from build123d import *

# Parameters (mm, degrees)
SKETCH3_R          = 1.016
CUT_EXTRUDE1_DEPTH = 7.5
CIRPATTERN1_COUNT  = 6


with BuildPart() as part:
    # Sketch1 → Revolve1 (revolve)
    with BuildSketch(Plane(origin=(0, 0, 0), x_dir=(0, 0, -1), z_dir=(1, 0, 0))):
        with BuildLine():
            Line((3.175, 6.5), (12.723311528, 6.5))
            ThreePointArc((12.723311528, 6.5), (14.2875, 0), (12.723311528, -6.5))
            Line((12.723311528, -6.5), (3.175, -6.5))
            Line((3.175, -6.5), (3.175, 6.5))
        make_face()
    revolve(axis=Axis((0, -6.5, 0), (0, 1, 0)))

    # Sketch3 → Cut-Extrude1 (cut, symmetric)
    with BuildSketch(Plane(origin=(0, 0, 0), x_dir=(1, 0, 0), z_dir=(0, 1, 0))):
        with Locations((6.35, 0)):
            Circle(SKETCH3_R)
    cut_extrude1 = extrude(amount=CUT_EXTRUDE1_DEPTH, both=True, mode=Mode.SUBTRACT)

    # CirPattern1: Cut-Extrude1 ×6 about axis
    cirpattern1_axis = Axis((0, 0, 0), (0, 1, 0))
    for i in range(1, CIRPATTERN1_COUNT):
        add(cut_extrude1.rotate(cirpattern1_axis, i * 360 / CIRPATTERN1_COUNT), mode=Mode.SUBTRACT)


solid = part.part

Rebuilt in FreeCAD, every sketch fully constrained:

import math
import FreeCAD as App
import Part
import Sketcher
from FreeCAD import Vector
Q = App.Units.Quantity

doc = App.newDocument("Part")
params = doc.addObject("Spreadsheet::Sheet", "Params")
for row, (alias, value) in enumerate([
    ("sketch1_width", "13 mm"),
    ("revolution_angle", "360 deg"),
    ("pocket1_length", "15 mm"),
], start=1):
    params.set(f"A{row}", alias)
    params.set(f"B{row}", "=" + value)
    params.setAlias(f"B{row}", alias)

body = doc.addObject("PartDesign::Body", "Body")

# Sketch on YZ plane
sketch1 = body.newObject("Sketcher::SketchObject", "Sketch")
sketch1.AttachmentSupport = (doc.getObject("YZ_Plane"), [""])
sketch1.MapMode = "FlatFace"
sketch1.addGeometry(Part.LineSegment(Vector(6.5, -12.723312, 0), Vector(6.5, -3.175, 0)), False)
sketch1.addGeometry(Part.LineSegment(Vector(6.5, -3.175, 0), Vector(-6.5, -3.175, 0)), False)
sketch1.addGeometry(Part.LineSegment(Vector(-6.5, -3.175, 0), Vector(-6.5, -12.723312, 0)), False)
sketch1.addGeometry(Part.ArcOfCircle(Part.Circle(Vector(0, 0, 0), Vector(0, 0, 1), 14.2875), math.radians(-117.061275), math.radians(-62.938725)), False)
sketch1.addConstraint(Sketcher.Constraint("Coincident", 0, 2, 1, 1))
sketch1.addConstraint(Sketcher.Constraint("Coincident", 1, 2, 2, 1))
sketch1.addConstraint(Sketcher.Constraint("Coincident", 2, 2, 3, 1))
sketch1.addConstraint(Sketcher.Constraint("Coincident", 3, 2, 0, 1))
sketch1.addConstraint(Sketcher.Constraint("Vertical", 0))
sketch1.addConstraint(Sketcher.Constraint("Horizontal", 1))
sketch1.addConstraint(Sketcher.Constraint("Vertical", 2))
sketch1.addConstraint(Sketcher.Constraint("Coincident", 3, 3, -1, 1))
sketch1.addConstraint(Sketcher.Constraint("Horizontal", 2, 2, 3, 2))
sketch1.addConstraint(Sketcher.Constraint("DistanceX", 1, 2, 1, 1, Q("13 mm")))
sketch1.addConstraint(Sketcher.Constraint("Radius", 3, Q("14.2875 mm")))
sketch1.addConstraint(Sketcher.Constraint("DistanceY", 0, 2, -1, 1, Q("3.175 mm")))
sketch1.setExpression("Constraints[9]", "Params.sketch1_width")
revolution = body.newObject("PartDesign::Revolution", "Revolution")
revolution.Profile = sketch1
revolution.ReferenceAxis = (sketch1, ["H_Axis"])
revolution.setExpression("Angle", "Params.revolution_angle")

# Sketch on XZ plane
sketch2 = body.newObject("Sketcher::SketchObject", "Sketch001")
sketch2.AttachmentSupport = (doc.getObject("XZ_Plane"), [""])
sketch2.MapMode = "FlatFace"
sketch2.addGeometry(Part.Circle(Vector(6.35, 0, 0), Vector(0, 0, 1), 1.016), False)
sketch2.addConstraint(Sketcher.Constraint("PointOnObject", 0, 3, -1))
sketch2.addConstraint(Sketcher.Constraint("Diameter", 0, Q("2.032 mm")))
sketch2.addConstraint(Sketcher.Constraint("DistanceX", -1, 1, 0, 3, Q("6.35 mm")))
pocket1 = body.newObject("PartDesign::Pocket", "Pocket")
pocket1.Profile = sketch2
pocket1.setExpression("Length", "Params.pocket1_length")
pocket1.Midplane = True
doc.recompute()

polarpattern = body.newObject("PartDesign::PolarPattern", "PolarPattern")
polarpattern.Originals = [pocket1]
polarpattern.Axis = (doc.getObject("Y_Axis"), [""])
polarpattern.Angle = 360
polarpattern.Occurrences = 6
body.Tip = polarpattern

doc.recompute()
